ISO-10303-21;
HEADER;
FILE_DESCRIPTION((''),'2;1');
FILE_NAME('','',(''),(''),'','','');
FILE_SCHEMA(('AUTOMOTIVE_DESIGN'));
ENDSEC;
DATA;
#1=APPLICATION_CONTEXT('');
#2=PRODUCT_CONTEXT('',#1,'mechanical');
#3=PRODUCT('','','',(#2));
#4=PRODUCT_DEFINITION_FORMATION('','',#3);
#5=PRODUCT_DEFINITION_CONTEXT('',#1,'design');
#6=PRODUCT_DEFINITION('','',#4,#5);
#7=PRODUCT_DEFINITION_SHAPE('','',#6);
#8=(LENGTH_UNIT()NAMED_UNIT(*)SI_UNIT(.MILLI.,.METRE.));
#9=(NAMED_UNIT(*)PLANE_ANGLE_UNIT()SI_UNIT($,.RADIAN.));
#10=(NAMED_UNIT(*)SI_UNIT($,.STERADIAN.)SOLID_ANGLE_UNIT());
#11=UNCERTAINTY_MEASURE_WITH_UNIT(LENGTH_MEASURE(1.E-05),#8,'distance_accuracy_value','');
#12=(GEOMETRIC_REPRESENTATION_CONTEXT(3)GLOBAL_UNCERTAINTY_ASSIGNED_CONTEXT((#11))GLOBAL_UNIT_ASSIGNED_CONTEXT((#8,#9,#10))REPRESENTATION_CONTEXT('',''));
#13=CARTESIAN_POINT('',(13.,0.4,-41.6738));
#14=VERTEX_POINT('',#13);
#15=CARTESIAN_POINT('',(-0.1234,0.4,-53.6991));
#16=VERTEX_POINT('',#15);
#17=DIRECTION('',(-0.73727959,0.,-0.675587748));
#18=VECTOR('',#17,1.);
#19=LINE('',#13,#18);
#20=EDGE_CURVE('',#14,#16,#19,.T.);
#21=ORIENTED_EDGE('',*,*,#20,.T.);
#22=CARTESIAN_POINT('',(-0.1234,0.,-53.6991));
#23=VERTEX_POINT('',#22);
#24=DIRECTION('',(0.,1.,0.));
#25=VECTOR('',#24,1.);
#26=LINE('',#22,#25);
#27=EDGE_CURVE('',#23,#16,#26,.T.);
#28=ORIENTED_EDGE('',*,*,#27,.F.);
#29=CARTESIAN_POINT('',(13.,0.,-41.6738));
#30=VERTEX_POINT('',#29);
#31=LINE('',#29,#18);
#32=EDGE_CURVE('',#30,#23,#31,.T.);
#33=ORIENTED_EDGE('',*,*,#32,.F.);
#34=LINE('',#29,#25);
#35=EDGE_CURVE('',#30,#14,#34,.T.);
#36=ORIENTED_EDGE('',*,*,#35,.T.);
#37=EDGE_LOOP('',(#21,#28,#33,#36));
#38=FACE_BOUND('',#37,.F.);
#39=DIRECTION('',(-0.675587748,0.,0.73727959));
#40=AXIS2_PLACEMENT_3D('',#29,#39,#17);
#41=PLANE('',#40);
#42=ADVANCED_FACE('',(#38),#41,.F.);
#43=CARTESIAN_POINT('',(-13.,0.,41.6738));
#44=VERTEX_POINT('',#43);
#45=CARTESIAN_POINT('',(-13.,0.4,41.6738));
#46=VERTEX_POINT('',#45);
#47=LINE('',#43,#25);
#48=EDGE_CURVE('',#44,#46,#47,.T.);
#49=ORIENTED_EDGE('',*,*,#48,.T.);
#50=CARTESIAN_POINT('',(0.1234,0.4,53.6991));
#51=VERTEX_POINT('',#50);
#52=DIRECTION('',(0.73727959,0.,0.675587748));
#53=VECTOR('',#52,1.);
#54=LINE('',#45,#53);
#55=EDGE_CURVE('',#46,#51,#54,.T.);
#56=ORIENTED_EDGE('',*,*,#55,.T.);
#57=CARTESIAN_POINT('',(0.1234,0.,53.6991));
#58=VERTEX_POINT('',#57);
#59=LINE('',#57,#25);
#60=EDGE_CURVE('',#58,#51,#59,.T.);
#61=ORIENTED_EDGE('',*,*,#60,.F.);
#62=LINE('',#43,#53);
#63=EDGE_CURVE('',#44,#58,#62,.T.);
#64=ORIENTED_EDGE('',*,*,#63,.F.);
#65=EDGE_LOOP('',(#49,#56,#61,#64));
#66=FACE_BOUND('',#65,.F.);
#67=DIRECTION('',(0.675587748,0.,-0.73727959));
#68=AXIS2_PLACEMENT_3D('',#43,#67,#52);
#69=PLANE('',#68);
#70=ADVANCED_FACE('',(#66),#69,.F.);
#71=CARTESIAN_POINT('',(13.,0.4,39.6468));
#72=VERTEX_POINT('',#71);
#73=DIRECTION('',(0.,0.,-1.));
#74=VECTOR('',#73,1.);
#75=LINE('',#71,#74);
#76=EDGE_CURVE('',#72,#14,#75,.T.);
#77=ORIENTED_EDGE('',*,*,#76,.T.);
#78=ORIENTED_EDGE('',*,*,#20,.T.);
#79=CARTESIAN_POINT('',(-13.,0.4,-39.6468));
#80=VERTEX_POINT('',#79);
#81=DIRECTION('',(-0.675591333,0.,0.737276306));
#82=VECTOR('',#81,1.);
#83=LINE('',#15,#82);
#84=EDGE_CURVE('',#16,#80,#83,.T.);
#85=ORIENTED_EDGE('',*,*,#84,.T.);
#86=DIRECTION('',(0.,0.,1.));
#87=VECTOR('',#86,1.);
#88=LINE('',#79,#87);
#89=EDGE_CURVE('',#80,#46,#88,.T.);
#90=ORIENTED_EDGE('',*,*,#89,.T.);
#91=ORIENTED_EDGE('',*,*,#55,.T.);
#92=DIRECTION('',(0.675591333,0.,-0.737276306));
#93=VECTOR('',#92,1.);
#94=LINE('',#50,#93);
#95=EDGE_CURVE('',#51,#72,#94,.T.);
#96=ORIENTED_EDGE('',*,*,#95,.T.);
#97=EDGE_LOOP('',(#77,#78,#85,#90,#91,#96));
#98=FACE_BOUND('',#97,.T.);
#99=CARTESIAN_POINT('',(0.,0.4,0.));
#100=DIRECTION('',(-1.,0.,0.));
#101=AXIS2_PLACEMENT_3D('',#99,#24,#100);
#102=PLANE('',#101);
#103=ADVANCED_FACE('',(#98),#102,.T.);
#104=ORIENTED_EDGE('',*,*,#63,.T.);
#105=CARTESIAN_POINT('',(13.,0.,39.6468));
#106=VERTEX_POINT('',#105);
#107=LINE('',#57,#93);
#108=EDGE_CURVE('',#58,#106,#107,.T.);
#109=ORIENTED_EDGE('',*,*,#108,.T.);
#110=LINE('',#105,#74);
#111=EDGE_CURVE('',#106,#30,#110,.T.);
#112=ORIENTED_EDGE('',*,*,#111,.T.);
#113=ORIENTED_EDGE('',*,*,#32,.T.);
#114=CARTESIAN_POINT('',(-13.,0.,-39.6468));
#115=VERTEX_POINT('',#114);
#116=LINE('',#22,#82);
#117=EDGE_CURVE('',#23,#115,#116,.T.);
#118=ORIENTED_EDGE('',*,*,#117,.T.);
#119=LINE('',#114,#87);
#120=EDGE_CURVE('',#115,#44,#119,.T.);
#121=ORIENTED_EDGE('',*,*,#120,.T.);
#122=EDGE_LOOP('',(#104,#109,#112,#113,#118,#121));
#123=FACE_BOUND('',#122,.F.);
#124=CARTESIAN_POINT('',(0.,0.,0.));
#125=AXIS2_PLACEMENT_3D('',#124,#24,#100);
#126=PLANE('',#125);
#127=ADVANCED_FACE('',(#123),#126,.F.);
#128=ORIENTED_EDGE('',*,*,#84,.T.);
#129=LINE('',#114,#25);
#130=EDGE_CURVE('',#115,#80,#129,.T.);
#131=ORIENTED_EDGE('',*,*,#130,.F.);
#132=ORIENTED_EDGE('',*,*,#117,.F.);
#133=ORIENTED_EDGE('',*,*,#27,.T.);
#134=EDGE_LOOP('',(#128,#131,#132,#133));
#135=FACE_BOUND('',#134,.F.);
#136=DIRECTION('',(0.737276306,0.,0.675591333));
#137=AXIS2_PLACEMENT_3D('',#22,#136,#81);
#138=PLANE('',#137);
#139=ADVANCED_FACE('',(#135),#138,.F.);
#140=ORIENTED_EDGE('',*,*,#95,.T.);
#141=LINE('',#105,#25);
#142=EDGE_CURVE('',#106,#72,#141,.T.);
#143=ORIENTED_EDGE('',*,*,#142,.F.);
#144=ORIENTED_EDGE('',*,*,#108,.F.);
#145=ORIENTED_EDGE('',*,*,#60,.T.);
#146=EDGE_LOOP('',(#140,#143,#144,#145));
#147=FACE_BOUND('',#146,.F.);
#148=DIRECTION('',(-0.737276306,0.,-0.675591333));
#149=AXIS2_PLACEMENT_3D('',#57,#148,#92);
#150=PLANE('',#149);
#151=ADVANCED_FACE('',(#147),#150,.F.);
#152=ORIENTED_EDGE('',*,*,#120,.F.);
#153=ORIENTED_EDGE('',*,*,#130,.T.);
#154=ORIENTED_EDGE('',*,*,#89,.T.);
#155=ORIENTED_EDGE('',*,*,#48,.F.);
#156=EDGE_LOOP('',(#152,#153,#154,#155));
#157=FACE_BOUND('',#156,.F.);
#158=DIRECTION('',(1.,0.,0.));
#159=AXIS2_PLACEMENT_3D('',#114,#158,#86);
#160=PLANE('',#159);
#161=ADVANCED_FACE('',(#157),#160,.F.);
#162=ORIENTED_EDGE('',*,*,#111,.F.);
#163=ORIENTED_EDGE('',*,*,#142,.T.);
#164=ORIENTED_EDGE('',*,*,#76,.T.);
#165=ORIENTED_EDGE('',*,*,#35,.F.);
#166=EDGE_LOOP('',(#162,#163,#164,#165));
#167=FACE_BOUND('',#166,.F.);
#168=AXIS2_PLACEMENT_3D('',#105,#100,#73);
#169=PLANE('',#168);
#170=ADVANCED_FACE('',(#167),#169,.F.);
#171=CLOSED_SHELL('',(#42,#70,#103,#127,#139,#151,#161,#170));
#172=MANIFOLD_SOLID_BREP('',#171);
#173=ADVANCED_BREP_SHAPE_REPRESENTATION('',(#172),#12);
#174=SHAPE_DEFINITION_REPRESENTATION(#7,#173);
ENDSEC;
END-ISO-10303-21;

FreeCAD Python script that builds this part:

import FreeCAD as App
import Part
import Sketcher

V = App.Vector
Q = App.Units.Quantity

doc = App.newDocument("Part")
params = doc.addObject("Spreadsheet::Sheet", "Params")
for row, (alias, value) in enumerate([
    ("pad1_length", "0.4 mm"),
], start=1):
    params.set(f"A{row}", alias)
    params.set(f"B{row}", "=" + value)
    params.setAlias(f"B{row}", alias)

body = doc.addObject("PartDesign::Body", "Body")

sketch1 = body.newObject("Sketcher::SketchObject", "Sketch")
sketch1.AttachmentSupport = (doc.getObject("XZ_Plane"), [""])
sketch1.MapMode = "FlatFace"
sketch1.addGeometry([
    Part.LineSegment(V(0, -54, 0), V(-13, -40, 0)),
    Part.LineSegment(V(-13, -40, 0), V(-13, 42, 0)),
    Part.LineSegment(V(-13, 42, 0), V(0, 54, 0)),
    Part.LineSegment(V(0, 54, 0), V(13, 40, 0)),
    Part.LineSegment(V(13, 40, 0), V(13, -42, 0)),
    Part.LineSegment(V(13, -42, 0), V(0, -54, 0)),
], False)
sketch1.addConstraint([
    Sketcher.Constraint("Coincident", 0, 2, 1, 1),
    Sketcher.Constraint("Coincident", 1, 2, 2, 1),
    Sketcher.Constraint("Coincident", 2, 2, 3, 1),
    Sketcher.Constraint("Coincident", 3, 2, 4, 1),
    Sketcher.Constraint("Coincident", 4, 2, 5, 1),
    Sketcher.Constraint("Coincident", 5, 2, 0, 1),
    Sketcher.Constraint("Vertical", 1),
    Sketcher.Constraint("Vertical", 4),
    Sketcher.Constraint("Symmetric", 0, 2, 3, 2, -1, 1),
    Sketcher.Constraint("Symmetric", 2, 2, 5, 2, -1, 1),
    Sketcher.Constraint("Perpendicular", 0, 2),
    Sketcher.Constraint("Perpendicular", 3, 5),
    Sketcher.Constraint("DistanceX", 0, 2, -1, 1, 13.0),
    Sketcher.Constraint("Angle", 0, Q("132.5 deg")),
    Sketcher.Constraint("DistanceY", 1, 1, 1, 2, 81.3206),
    Sketcher.Constraint("DistanceY", -1, 1, 2, 2, 53.699),
])
pad1 = body.newObject("PartDesign::Pad", "Pad")
pad1.Profile = sketch1
pad1.setExpression("Length", "Params.pad1_length")
pad1.Reversed = True

doc.recompute()
